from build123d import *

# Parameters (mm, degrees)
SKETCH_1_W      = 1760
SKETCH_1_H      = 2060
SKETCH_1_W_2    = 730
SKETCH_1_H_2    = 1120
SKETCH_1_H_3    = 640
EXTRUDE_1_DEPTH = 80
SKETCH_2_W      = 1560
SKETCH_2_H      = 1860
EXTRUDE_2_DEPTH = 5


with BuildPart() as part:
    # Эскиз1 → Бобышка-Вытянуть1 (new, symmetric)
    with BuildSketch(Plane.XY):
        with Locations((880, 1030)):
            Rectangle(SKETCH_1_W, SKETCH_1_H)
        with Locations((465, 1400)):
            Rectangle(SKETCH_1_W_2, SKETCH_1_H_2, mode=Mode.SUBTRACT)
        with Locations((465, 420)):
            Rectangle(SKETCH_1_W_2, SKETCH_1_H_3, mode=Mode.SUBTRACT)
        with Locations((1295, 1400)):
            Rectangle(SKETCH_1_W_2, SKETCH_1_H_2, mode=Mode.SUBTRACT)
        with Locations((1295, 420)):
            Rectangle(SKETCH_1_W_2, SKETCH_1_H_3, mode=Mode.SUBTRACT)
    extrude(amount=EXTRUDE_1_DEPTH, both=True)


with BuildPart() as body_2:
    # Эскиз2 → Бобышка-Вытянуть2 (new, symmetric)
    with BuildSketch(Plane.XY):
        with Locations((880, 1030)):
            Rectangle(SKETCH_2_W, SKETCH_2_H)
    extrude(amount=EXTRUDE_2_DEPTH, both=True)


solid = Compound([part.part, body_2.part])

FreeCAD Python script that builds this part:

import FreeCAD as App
import Part
import Sketcher
from FreeCAD import Vector


def add_polygon(sketch, points):
    """Adds a closed chain of lines whose ends are joined by coincident constraints."""
    first, n = sketch.GeometryCount, len(points)
    for a, b in zip(points, points[1:] + points[:1]):
        sketch.addGeometry(Part.LineSegment(App.Vector(*a, 0), App.Vector(*b, 0)), False)
    for i in range(n):
        sketch.addConstraint(Sketcher.Constraint("Coincident", first + i, 2, first + (i + 1) % n, 1))

doc = App.newDocument("Part")
body = doc.addObject("PartDesign::Body", "Body")

# Sketch on XY plane
sketch1 = body.newObject("Sketcher::SketchObject", "Sketch")
sketch1.AttachmentSupport = (doc.getObject("XY_Plane"), [""])
sketch1.MapMode = "FlatFace"
add_polygon(sketch1, [(0, 2060), (0, 0), (1760, 0), (1760, 2060)])  # lines 0-3
add_polygon(sketch1, [(830, 100), (100, 100), (100, 740), (830, 740)])  # lines 4-7
add_polygon(sketch1, [(1660, 100), (930, 100), (930, 740), (1660, 740)])  # lines 8-11
add_polygon(sketch1, [(830, 840), (100, 840), (100, 1960), (830, 1960)])  # lines 12-15
add_polygon(sketch1, [(1660, 840), (930, 840), (930, 1960), (1660, 1960)])  # lines 16-19
sketch1.addConstraint([
    Sketcher.Constraint("Vertical", 0),
    Sketcher.Constraint("Horizontal", 1),
    Sketcher.Constraint("Vertical", 2),
    Sketcher.Constraint("Horizontal", 3),
    Sketcher.Constraint("Horizontal", 4),
    Sketcher.Constraint("Vertical", 5),
    Sketcher.Constraint("Horizontal", 6),
    Sketcher.Constraint("Vertical", 7),
    Sketcher.Constraint("Horizontal", 8),
    Sketcher.Constraint("Vertical", 9),
    Sketcher.Constraint("Horizontal", 10),
    Sketcher.Constraint("Vertical", 11),
    Sketcher.Constraint("Horizontal", 12),
    Sketcher.Constraint("Vertical", 13),
    Sketcher.Constraint("Horizontal", 14),
    Sketcher.Constraint("Vertical", 15),
    Sketcher.Constraint("Horizontal", 16),
    Sketcher.Constraint("Vertical", 17),
    Sketcher.Constraint("Horizontal", 18),
    Sketcher.Constraint("Vertical", 19),
    Sketcher.Constraint("Coincident", 0, 2, -1, 1),
    Sketcher.Constraint("Horizontal", 7, 2, 8, 2),
    Sketcher.Constraint("Horizontal", 6, 2, 9, 2),
    Sketcher.Constraint("Horizontal", 15, 2, 16, 2),
    Sketcher.Constraint("Horizontal", 14, 2, 17, 2),
    Sketcher.Constraint("Vertical", 5, 2, 12, 2),
    Sketcher.Constraint("Vertical", 7, 2, 14, 2),
    Sketcher.Constraint("Vertical", 9, 2, 16, 2),
    Sketcher.Constraint("Vertical", 11, 2, 18, 2),
    Sketcher.Constraint("Equal", 6, 8),
    Sketcher.Constraint("DistanceX", 1, 1, 1, 2, 1760.0),
    Sketcher.Constraint("DistanceX", 4, 2, 4, 1, 730.0),
    Sketcher.Constraint("DistanceY", 0, 2, 0, 1, 2060.0),
    Sketcher.Constraint("DistanceY", 5, 1, 5, 2, 640.0),
    Sketcher.Constraint("DistanceY", 13, 1, 13, 2, 1120.0),
    Sketcher.Constraint("DistanceX", -1, 1, 4, 2, 100.0),
    Sketcher.Constraint("DistanceY", -1, 1, 4, 2, 100.0),
    Sketcher.Constraint("DistanceX", -1, 1, 8, 2, 930.0),
    Sketcher.Constraint("DistanceY", -1, 1, 12, 2, 840.0),
])
pad1 = body.newObject("PartDesign::Pad", "Pad")
pad1.Profile = sketch1
pad1.Length = 160
pad1.Midplane = True
body2 = doc.addObject("PartDesign::Body", "Body001")

# Sketch on XY plane
sketch2 = body2.newObject("Sketcher::SketchObject", "Sketch001")
sketch2.AttachmentSupport = (doc.getObject("XY_Plane001"), [""])
sketch2.MapMode = "FlatFace"
add_polygon(sketch2, [(100, 1960), (100, 100), (1660, 100), (1660, 1960)])  # lines 0-3
sketch2.addConstraint([
    Sketcher.Constraint("Vertical", 0),
    Sketcher.Constraint("Horizontal", 1),
    Sketcher.Constraint("Vertical", 2),
    Sketcher.Constraint("Horizontal", 3),
    Sketcher.Constraint("DistanceX", 1, 1, 1, 2, 1560.0),
    Sketcher.Constraint("DistanceY", 0, 2, 0, 1, 1860.0),
    Sketcher.Constraint("DistanceX", -1, 1, 0, 2, 100.0),
    Sketcher.Constraint("DistanceY", -1, 1, 0, 2, 100.0),
])
pad2 = body2.newObject("PartDesign::Pad", "Pad001")
pad2.Profile = sketch2
pad2.Length = 10
pad2.Midplane = True

doc.recompute()
